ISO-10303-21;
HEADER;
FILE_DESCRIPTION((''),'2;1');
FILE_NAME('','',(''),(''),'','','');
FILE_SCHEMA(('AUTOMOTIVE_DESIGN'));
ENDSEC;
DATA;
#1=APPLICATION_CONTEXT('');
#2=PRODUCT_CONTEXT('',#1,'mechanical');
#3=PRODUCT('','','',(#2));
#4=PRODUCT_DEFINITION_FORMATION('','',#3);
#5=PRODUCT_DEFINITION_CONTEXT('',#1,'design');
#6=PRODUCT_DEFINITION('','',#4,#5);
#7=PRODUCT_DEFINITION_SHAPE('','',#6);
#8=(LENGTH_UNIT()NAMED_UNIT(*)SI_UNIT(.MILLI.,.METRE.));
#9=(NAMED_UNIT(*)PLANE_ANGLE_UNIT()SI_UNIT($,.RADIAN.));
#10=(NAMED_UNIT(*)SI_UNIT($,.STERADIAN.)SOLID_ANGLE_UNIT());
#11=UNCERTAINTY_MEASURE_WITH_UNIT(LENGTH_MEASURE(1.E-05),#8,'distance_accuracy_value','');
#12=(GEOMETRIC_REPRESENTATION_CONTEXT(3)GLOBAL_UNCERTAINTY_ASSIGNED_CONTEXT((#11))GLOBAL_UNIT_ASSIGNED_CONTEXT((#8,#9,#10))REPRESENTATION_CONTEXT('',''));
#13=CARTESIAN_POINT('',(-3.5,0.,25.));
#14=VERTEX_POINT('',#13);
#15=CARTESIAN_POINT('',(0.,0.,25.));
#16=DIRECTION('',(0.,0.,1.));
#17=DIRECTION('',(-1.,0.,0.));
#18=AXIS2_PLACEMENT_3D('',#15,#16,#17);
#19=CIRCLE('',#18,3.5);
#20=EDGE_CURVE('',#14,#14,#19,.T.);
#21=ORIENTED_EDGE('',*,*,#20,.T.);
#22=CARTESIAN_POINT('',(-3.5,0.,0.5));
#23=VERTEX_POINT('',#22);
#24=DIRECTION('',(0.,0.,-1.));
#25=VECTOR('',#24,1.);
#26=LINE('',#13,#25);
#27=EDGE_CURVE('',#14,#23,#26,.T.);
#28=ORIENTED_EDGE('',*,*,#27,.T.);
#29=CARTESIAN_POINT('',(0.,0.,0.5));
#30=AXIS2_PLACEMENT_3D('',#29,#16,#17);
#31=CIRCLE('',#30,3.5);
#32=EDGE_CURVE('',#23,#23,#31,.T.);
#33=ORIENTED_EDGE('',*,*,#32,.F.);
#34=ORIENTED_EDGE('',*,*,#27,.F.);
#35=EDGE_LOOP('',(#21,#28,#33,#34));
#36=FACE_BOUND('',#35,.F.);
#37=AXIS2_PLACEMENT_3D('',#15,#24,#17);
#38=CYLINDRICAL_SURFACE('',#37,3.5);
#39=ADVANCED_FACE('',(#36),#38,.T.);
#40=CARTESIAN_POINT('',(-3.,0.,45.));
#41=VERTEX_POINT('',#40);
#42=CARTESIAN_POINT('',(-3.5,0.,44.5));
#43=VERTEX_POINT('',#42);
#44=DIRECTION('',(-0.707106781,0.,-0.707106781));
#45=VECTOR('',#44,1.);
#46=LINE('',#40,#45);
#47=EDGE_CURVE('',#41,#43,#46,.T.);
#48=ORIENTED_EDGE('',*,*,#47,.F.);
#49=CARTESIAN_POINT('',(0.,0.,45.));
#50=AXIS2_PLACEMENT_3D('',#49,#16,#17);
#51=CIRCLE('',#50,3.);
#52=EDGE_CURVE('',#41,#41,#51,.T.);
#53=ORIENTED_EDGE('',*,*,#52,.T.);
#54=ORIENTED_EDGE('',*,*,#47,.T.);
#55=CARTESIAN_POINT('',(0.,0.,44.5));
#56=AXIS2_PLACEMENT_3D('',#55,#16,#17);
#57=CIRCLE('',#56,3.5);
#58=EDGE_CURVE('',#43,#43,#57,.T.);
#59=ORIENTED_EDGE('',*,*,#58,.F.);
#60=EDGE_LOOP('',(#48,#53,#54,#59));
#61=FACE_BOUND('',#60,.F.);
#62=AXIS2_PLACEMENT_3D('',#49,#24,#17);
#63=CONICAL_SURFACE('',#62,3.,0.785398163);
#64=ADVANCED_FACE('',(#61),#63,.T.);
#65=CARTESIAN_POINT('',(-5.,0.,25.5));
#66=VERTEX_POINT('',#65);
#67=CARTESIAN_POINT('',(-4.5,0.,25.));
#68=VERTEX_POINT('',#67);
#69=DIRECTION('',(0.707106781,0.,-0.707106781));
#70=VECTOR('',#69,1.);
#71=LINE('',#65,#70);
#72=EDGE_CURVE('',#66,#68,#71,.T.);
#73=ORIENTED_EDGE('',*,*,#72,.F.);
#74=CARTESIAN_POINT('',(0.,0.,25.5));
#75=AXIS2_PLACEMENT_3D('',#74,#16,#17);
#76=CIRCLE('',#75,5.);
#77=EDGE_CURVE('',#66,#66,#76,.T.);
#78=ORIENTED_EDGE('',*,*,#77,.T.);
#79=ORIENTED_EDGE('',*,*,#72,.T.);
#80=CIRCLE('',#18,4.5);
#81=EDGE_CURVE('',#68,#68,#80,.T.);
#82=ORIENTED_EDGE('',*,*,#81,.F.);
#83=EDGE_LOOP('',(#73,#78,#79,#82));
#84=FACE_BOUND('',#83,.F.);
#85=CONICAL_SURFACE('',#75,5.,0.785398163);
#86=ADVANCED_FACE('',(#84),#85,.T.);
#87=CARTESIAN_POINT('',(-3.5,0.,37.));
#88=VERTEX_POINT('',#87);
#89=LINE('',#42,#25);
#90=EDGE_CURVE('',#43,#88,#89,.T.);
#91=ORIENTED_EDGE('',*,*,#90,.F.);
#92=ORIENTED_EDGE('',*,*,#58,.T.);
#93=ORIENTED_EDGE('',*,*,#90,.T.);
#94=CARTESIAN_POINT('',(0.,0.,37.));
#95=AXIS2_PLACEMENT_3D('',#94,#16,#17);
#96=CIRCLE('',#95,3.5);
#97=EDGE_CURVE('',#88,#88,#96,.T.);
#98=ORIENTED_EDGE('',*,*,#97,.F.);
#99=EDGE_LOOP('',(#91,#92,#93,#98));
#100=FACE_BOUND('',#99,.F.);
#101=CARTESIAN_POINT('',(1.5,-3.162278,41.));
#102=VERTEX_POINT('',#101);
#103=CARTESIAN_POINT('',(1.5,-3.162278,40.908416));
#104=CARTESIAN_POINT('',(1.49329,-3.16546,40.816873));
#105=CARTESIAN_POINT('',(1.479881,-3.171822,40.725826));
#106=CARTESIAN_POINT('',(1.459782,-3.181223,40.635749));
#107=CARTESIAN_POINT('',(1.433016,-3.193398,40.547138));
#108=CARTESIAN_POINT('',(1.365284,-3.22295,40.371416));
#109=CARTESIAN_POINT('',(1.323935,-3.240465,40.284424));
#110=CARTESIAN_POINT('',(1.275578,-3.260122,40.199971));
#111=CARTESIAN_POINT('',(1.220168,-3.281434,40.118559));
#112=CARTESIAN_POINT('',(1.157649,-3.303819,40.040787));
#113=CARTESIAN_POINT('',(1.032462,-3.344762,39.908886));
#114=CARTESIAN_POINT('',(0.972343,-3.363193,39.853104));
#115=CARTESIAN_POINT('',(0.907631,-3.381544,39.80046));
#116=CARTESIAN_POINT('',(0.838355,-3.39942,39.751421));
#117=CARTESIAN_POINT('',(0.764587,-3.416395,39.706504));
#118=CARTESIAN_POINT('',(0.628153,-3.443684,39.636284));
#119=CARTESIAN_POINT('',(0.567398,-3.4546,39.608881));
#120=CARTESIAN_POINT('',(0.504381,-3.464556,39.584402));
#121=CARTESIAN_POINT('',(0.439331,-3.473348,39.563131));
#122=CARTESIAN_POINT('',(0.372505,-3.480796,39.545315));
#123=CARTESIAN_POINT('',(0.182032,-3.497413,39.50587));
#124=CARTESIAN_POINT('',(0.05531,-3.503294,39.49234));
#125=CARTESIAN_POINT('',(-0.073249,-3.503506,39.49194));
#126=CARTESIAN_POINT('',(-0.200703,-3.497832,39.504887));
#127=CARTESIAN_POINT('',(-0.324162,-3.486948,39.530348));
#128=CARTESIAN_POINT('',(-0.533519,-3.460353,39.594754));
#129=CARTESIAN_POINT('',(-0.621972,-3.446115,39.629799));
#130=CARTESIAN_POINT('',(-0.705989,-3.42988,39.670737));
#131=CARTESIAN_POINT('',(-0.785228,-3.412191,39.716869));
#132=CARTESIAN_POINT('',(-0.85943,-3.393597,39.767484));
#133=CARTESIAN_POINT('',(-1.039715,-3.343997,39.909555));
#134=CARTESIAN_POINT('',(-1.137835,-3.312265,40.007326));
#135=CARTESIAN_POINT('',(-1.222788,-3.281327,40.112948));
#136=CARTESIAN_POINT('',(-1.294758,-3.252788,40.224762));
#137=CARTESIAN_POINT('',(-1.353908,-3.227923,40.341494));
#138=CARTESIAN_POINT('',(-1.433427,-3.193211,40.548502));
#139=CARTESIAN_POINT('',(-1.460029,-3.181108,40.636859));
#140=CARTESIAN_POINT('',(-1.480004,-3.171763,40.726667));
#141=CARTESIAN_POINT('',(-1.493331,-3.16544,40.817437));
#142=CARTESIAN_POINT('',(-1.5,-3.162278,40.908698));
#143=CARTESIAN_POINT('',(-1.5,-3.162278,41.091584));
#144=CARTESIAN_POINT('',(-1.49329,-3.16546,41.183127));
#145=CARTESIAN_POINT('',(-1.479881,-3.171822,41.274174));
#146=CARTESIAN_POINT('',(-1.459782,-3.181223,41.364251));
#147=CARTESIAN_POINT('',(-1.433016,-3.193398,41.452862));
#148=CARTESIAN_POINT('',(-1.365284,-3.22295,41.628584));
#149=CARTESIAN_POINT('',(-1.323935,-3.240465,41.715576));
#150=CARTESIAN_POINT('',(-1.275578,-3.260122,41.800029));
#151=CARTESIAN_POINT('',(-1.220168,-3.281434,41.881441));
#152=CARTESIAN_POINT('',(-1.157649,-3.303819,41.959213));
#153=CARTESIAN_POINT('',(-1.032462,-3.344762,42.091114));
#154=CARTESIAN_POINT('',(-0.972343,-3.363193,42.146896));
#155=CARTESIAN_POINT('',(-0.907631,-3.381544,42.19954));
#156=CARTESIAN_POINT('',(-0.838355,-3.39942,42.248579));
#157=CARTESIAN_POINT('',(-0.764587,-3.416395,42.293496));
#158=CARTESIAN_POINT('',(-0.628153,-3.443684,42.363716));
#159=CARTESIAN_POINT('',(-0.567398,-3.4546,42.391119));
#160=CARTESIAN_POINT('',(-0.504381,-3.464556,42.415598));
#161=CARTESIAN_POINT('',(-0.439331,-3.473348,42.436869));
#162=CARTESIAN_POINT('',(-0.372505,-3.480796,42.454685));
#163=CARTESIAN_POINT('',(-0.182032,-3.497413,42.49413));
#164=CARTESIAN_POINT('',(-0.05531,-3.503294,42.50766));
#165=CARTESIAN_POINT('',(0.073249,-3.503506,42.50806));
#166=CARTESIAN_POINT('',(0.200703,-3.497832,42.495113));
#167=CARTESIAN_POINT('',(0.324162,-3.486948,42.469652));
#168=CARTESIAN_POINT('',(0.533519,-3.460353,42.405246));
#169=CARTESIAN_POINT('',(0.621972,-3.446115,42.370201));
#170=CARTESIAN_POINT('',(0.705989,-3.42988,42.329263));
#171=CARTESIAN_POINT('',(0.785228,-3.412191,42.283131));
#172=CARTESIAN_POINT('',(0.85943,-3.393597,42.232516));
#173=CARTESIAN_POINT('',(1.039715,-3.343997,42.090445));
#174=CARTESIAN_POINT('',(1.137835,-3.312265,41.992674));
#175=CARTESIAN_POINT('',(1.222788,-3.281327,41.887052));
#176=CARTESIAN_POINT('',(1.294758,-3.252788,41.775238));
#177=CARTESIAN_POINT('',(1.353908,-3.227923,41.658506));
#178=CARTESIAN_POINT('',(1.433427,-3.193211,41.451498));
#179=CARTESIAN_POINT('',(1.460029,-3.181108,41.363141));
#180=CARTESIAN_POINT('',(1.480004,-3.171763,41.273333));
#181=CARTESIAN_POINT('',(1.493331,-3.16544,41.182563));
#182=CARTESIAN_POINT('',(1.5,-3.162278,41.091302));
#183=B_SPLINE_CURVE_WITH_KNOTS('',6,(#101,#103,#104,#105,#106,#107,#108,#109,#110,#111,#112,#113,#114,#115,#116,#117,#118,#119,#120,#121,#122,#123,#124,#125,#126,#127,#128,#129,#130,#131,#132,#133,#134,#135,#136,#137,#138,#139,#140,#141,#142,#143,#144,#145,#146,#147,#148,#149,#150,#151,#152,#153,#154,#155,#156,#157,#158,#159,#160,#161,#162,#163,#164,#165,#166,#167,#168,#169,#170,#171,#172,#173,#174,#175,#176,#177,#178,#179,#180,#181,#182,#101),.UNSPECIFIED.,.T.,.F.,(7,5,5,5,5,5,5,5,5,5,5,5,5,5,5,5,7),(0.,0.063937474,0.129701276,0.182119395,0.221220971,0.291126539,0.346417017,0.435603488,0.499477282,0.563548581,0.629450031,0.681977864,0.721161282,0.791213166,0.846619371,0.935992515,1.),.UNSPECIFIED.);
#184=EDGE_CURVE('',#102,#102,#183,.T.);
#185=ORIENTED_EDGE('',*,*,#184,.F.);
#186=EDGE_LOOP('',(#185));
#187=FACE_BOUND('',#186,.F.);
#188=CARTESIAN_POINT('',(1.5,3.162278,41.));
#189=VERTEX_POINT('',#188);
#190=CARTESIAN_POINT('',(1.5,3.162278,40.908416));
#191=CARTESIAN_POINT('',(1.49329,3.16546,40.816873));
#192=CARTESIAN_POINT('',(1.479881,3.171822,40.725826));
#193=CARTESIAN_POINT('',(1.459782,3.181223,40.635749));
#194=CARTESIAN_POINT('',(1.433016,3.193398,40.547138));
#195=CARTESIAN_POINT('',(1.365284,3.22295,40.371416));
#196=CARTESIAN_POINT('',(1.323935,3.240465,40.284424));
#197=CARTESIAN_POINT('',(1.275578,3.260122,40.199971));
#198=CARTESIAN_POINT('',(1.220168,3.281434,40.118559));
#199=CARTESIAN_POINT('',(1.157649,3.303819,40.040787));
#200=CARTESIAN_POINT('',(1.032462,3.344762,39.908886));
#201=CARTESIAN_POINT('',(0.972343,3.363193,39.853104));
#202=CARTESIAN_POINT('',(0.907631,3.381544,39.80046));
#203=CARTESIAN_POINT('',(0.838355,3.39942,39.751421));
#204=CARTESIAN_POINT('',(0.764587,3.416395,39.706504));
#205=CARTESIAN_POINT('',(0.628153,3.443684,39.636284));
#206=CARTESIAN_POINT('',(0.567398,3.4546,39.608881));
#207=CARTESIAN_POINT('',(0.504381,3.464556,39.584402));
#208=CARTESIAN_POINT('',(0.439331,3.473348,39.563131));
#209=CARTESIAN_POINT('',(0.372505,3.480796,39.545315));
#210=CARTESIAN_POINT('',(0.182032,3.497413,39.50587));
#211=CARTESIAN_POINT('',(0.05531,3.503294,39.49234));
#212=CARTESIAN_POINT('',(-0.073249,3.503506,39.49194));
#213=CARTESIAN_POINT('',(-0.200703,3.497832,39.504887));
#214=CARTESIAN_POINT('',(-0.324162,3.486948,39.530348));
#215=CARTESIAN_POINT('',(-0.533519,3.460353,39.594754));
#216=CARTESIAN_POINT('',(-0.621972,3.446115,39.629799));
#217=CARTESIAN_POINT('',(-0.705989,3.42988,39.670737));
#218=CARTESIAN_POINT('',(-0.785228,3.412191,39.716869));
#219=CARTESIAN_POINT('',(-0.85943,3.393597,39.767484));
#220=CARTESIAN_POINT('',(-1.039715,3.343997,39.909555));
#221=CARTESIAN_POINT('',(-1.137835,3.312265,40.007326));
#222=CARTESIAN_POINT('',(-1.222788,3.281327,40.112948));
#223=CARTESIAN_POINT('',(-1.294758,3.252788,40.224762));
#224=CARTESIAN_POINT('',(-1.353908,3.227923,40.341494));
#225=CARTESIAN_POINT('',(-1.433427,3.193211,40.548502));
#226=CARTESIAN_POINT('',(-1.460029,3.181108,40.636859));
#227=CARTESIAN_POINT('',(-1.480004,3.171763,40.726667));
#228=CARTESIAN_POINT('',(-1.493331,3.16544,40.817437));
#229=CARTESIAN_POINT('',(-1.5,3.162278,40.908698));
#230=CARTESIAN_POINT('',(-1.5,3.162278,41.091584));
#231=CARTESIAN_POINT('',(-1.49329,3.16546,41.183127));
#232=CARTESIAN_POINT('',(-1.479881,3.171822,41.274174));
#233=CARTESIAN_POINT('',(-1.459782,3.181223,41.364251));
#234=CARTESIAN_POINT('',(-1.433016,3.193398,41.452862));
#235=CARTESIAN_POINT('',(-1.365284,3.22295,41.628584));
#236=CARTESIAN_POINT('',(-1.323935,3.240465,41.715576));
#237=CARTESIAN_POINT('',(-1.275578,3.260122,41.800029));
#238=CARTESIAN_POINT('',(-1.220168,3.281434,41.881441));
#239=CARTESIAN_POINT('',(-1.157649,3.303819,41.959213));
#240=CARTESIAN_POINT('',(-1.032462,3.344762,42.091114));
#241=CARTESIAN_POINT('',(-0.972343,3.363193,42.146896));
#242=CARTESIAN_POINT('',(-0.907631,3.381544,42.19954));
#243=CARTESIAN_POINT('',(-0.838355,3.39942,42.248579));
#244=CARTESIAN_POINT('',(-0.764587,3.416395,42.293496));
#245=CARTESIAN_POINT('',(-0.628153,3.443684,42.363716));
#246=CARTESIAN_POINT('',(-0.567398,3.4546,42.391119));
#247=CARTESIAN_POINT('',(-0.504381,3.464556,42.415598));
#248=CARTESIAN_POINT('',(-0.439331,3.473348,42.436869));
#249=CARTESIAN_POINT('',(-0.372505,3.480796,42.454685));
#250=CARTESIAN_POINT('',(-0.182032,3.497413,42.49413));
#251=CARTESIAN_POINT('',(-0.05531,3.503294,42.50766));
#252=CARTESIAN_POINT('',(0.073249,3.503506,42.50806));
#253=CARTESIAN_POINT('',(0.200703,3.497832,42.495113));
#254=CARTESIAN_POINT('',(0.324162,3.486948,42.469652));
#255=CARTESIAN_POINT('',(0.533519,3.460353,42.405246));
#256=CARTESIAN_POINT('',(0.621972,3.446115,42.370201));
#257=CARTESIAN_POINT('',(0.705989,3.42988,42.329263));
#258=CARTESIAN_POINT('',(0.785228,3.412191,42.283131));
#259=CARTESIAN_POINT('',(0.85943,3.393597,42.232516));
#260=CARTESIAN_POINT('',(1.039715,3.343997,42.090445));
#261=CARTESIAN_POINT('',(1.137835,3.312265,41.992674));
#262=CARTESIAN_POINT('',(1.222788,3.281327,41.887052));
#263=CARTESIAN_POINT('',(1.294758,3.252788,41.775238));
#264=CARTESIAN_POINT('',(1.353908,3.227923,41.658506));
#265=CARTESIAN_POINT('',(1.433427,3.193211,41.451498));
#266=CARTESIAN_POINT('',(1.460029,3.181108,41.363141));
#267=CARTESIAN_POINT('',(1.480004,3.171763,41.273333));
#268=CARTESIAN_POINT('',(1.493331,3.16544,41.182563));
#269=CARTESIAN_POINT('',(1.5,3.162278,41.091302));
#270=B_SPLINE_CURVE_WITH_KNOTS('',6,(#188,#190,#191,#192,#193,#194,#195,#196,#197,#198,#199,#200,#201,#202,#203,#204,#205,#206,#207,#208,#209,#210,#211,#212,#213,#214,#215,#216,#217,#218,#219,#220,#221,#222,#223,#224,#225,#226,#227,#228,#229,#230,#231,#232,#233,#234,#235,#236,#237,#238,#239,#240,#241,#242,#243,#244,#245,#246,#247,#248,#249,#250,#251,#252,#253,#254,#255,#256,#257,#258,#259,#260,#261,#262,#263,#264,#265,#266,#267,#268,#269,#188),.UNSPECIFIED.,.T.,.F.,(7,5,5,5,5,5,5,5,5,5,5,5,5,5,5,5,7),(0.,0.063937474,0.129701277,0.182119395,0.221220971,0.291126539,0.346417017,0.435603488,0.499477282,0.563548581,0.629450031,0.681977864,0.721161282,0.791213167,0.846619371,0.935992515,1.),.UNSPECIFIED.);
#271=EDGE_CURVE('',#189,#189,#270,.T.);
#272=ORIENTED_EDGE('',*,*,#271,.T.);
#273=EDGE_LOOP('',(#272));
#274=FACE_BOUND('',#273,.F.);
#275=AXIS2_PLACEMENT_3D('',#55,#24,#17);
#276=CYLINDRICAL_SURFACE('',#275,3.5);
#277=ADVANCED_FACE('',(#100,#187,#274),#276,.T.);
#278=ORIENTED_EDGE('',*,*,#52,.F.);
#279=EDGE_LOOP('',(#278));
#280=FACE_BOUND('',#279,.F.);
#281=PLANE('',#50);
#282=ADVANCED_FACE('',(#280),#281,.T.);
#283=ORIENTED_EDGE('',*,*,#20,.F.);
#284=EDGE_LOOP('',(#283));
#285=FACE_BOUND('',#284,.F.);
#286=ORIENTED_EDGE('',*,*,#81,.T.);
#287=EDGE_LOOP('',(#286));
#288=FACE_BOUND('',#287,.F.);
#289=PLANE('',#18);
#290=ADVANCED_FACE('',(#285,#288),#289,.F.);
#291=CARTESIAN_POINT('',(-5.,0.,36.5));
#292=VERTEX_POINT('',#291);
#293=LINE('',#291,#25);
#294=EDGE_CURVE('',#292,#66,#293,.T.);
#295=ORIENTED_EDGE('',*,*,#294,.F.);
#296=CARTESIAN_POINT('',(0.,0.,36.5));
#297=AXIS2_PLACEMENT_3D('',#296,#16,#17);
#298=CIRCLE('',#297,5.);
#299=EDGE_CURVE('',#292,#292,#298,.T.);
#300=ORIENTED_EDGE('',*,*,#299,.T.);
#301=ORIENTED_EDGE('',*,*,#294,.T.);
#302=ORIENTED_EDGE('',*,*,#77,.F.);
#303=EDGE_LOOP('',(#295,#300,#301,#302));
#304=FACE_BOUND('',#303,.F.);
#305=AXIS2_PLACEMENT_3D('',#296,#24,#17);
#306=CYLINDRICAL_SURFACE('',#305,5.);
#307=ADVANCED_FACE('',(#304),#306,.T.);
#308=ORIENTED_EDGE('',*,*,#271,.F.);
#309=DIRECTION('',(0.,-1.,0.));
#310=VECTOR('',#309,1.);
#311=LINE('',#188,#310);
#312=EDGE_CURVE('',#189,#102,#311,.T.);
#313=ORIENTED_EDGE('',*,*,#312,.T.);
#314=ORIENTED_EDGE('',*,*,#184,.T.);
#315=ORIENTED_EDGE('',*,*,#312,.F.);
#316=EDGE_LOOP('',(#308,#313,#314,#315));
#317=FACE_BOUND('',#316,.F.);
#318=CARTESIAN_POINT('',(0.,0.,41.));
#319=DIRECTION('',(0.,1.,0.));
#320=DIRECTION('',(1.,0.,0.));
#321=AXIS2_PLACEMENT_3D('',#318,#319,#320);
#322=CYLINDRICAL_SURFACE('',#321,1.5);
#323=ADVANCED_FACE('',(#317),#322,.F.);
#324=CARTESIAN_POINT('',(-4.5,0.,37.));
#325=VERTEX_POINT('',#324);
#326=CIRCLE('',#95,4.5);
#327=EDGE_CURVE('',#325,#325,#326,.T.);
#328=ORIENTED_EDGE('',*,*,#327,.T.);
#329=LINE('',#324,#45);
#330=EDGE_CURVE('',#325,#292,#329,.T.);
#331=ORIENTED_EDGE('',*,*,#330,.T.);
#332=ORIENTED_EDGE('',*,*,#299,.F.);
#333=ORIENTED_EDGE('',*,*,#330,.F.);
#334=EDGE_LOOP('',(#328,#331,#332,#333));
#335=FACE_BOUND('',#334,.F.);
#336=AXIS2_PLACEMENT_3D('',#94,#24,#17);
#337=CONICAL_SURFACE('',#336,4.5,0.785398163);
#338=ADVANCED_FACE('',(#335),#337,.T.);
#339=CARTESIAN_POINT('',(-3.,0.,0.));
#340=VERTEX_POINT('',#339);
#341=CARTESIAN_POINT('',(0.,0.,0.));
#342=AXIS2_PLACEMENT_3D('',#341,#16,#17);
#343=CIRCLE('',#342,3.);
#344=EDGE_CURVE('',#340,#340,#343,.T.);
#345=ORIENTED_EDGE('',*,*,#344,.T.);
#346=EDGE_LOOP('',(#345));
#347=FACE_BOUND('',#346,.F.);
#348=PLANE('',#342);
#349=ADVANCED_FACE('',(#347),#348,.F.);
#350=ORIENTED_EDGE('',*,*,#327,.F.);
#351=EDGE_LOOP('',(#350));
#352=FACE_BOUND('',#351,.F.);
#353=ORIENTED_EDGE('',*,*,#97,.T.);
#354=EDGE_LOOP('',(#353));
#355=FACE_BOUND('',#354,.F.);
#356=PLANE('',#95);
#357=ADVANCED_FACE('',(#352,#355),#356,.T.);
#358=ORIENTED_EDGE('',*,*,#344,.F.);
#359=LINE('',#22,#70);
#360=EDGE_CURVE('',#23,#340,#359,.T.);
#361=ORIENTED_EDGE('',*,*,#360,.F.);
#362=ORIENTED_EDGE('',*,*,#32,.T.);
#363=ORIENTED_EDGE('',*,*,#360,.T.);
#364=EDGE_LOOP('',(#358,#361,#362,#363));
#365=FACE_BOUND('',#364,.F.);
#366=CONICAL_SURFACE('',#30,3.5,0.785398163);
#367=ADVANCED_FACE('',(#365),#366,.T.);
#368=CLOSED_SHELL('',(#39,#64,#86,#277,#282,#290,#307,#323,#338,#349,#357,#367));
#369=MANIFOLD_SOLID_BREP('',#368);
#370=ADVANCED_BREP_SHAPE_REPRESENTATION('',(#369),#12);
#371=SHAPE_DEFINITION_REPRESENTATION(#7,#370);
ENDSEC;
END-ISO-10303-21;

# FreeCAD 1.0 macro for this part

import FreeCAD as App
import Part
import Sketcher
from FreeCAD import Vector
Q = App.Units.Quantity


def add_polygon(sketch, points):
    """Adds a closed chain of lines whose ends are joined by coincident constraints."""
    first, n = sketch.GeometryCount, len(points)
    for a, b in zip(points, points[1:] + points[:1]):
        sketch.addGeometry(Part.LineSegment(App.Vector(*a, 0), App.Vector(*b, 0)), False)
    for i in range(n):
        sketch.addConstraint(Sketcher.Constraint("Coincident", first + i, 2, first + (i + 1) % n, 1))

doc = App.newDocument("Part")
body = doc.addObject("PartDesign::Body", "Body")

sketch1 = body.newObject("Sketcher::SketchObject", "Sketch")
sketch1.AttachmentSupport = (doc.getObject("XZ_Plane"), [""])
sketch1.MapMode = "FlatFace"
add_polygon(sketch1, [(0, 0), (-3, 0), (-3.5, 0.5), (-3.5, 25), (-4.5, 25), (-5, 25.5), (-5, 36.5), (-4.5, 37), (-3.5, 37), (-3.5, 44.5), (-3, 45), (0, 45)])
sketch1.addConstraint([
    Sketcher.Constraint("Horizontal", 0),
    Sketcher.Constraint("Vertical", 2),
    Sketcher.Constraint("Horizontal", 3),
    Sketcher.Constraint("Vertical", 5),
    Sketcher.Constraint("Horizontal", 7),
    Sketcher.Constraint("Vertical", 8),
    Sketcher.Constraint("Horizontal", 10),
    Sketcher.Constraint("Vertical", 11),
    Sketcher.Constraint("Coincident", 11, 2, -1, 1),
    Sketcher.Constraint("Parallel", 1, 4),
    Sketcher.Constraint("Perpendicular", 4, 6),
    Sketcher.Constraint("Parallel", 6, 9),
    Sketcher.Constraint("Vertical", 3, 2, 6, 2),
    Sketcher.Constraint("Vertical", 2, 2, 7, 2),
    Sketcher.Constraint("Vertical", 0, 2, 9, 2),
    Sketcher.Constraint("Equal", 1, 4),
    Sketcher.Constraint("Equal", 4, 6),
    Sketcher.Constraint("DistanceX", 0, 2, 0, 1, Q("3 mm")),
    Sketcher.Constraint("DistanceY", 11, 2, 11, 1, Q("45 mm")),
    Sketcher.Constraint("DistanceX", 4, 2, -1, 1, Q("5 mm")),
    Sketcher.Constraint("DistanceY", 3, 2, 6, 2, Q("12 mm")),
    Sketcher.Constraint("DistanceY", 5, 2, 8, 2, Q("8 mm")),
    Sketcher.Constraint("DistanceY", -1, 1, 1, 2, Q("0.5 mm")),
])
revolution = body.newObject("PartDesign::Revolution", "Revolution")
revolution.Profile = sketch1
revolution.ReferenceAxis = (sketch1, ["V_Axis"])
revolution.Angle = 360

sketch2 = body.newObject("Sketcher::SketchObject", "Sketch001")
sketch2.AttachmentSupport = (doc.getObject("XZ_Plane"), [""])
sketch2.MapMode = "FlatFace"
sketch2.addGeometry(Part.Circle(Vector(0, 41, 0), Vector(0, 0, 1), 1.5), False)
sketch2.addConstraint([
    Sketcher.Constraint("PointOnObject", 0, 3, -2),
    Sketcher.Constraint("Diameter", 0, Q("3 mm")),
    Sketcher.Constraint("DistanceY", -1, 1, 0, 3, Q("41 mm")),
])
pocket1 = body.newObject("PartDesign::Pocket", "Pocket")
pocket1.Profile = sketch2
pocket1.Length = 10
pocket1.Midplane = True

doc.recompute()
